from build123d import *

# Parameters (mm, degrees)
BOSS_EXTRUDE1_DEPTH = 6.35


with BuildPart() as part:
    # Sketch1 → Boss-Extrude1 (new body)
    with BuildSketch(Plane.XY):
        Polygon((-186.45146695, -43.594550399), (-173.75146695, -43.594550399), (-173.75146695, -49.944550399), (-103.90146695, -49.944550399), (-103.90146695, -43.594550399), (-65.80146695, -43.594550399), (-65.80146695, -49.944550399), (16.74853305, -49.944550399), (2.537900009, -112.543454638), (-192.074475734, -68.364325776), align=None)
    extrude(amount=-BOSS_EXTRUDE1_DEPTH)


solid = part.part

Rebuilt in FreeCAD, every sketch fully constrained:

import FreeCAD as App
import Part
import Sketcher
from FreeCAD import Vector
Q = App.Units.Quantity


def add_polygon(sketch, points):
    """Adds a closed chain of lines whose ends are joined by coincident constraints."""
    first, n = sketch.GeometryCount, len(points)
    for a, b in zip(points, points[1:] + points[:1]):
        sketch.addGeometry(Part.LineSegment(App.Vector(*a, 0), App.Vector(*b, 0)), False)
    for i in range(n):
        sketch.addConstraint(Sketcher.Constraint("Coincident", first + i, 2, first + (i + 1) % n, 1))

doc = App.newDocument("Part")
body = doc.addObject("PartDesign::Body", "Body")

# Sketch on XY plane
sketch1 = body.newObject("Sketcher::SketchObject", "Sketch")
sketch1.AttachmentSupport = (doc.getObject("XY_Plane"), [""])
sketch1.MapMode = "FlatFace"
add_polygon(sketch1, [(-173.751467, -43.59455), (-186.451467, -43.59455), (-192.074476, -68.364326), (2.5379, -112.543455), (16.748533, -49.94455), (-65.801467, -49.94455), (-65.801467, -43.59455), (-103.901467, -43.59455), (-103.901467, -49.94455), (-173.751467, -49.94455)])  # lines 0-9
sketch1.addConstraint(Sketcher.Constraint("Horizontal", 0))
sketch1.addConstraint(Sketcher.Constraint("Horizontal", 4))
sketch1.addConstraint(Sketcher.Constraint("Vertical", 5))
sketch1.addConstraint(Sketcher.Constraint("Horizontal", 6))
sketch1.addConstraint(Sketcher.Constraint("Vertical", 7))
sketch1.addConstraint(Sketcher.Constraint("Horizontal", 8))
sketch1.addConstraint(Sketcher.Constraint("Vertical", 9))
sketch1.addConstraint(Sketcher.Constraint("Perpendicular", 1, 2))
sketch1.addConstraint(Sketcher.Constraint("Perpendicular", 2, 3))
sketch1.addConstraint(Sketcher.Constraint("Horizontal", 0, 2, 5, 2))
sketch1.addConstraint(Sketcher.Constraint("Horizontal", 4, 2, 7, 2))
sketch1.addConstraint(Sketcher.Constraint("Distance", 1, Q("1 in")))
sketch1.addConstraint(Sketcher.Constraint("DistanceX", 0, 2, 0, 1, Q("0.5 in")))
sketch1.addConstraint(Sketcher.Constraint("DistanceX", 6, 2, 6, 1, Q("1.5 in")))
sketch1.addConstraint(Sketcher.Constraint("DistanceX", 0, 2, 3, 2, Q("8 in")))
sketch1.addConstraint(Sketcher.Constraint("DistanceX", 4, 2, 4, 1, Q("3.25 in")))
sketch1.addConstraint(Sketcher.Constraint("DistanceY", 5, 1, 5, 2, Q("0.25 in")))
sketch1.addConstraint(Sketcher.Constraint("Angle", 1, Q("-102.79 deg")))
sketch1.addConstraint(Sketcher.Constraint("DistanceX", -1, 1, 2, 2, Q("2.5379 mm")))
sketch1.addConstraint(Sketcher.Constraint("DistanceY", 0, 2, -1, 1, Q("43.59455 mm")))
pad1 = body.newObject("PartDesign::Pad", "Pad")
pad1.Profile = sketch1
pad1.Length = Q("0.25 in")
pad1.Reversed = True

doc.recompute()
